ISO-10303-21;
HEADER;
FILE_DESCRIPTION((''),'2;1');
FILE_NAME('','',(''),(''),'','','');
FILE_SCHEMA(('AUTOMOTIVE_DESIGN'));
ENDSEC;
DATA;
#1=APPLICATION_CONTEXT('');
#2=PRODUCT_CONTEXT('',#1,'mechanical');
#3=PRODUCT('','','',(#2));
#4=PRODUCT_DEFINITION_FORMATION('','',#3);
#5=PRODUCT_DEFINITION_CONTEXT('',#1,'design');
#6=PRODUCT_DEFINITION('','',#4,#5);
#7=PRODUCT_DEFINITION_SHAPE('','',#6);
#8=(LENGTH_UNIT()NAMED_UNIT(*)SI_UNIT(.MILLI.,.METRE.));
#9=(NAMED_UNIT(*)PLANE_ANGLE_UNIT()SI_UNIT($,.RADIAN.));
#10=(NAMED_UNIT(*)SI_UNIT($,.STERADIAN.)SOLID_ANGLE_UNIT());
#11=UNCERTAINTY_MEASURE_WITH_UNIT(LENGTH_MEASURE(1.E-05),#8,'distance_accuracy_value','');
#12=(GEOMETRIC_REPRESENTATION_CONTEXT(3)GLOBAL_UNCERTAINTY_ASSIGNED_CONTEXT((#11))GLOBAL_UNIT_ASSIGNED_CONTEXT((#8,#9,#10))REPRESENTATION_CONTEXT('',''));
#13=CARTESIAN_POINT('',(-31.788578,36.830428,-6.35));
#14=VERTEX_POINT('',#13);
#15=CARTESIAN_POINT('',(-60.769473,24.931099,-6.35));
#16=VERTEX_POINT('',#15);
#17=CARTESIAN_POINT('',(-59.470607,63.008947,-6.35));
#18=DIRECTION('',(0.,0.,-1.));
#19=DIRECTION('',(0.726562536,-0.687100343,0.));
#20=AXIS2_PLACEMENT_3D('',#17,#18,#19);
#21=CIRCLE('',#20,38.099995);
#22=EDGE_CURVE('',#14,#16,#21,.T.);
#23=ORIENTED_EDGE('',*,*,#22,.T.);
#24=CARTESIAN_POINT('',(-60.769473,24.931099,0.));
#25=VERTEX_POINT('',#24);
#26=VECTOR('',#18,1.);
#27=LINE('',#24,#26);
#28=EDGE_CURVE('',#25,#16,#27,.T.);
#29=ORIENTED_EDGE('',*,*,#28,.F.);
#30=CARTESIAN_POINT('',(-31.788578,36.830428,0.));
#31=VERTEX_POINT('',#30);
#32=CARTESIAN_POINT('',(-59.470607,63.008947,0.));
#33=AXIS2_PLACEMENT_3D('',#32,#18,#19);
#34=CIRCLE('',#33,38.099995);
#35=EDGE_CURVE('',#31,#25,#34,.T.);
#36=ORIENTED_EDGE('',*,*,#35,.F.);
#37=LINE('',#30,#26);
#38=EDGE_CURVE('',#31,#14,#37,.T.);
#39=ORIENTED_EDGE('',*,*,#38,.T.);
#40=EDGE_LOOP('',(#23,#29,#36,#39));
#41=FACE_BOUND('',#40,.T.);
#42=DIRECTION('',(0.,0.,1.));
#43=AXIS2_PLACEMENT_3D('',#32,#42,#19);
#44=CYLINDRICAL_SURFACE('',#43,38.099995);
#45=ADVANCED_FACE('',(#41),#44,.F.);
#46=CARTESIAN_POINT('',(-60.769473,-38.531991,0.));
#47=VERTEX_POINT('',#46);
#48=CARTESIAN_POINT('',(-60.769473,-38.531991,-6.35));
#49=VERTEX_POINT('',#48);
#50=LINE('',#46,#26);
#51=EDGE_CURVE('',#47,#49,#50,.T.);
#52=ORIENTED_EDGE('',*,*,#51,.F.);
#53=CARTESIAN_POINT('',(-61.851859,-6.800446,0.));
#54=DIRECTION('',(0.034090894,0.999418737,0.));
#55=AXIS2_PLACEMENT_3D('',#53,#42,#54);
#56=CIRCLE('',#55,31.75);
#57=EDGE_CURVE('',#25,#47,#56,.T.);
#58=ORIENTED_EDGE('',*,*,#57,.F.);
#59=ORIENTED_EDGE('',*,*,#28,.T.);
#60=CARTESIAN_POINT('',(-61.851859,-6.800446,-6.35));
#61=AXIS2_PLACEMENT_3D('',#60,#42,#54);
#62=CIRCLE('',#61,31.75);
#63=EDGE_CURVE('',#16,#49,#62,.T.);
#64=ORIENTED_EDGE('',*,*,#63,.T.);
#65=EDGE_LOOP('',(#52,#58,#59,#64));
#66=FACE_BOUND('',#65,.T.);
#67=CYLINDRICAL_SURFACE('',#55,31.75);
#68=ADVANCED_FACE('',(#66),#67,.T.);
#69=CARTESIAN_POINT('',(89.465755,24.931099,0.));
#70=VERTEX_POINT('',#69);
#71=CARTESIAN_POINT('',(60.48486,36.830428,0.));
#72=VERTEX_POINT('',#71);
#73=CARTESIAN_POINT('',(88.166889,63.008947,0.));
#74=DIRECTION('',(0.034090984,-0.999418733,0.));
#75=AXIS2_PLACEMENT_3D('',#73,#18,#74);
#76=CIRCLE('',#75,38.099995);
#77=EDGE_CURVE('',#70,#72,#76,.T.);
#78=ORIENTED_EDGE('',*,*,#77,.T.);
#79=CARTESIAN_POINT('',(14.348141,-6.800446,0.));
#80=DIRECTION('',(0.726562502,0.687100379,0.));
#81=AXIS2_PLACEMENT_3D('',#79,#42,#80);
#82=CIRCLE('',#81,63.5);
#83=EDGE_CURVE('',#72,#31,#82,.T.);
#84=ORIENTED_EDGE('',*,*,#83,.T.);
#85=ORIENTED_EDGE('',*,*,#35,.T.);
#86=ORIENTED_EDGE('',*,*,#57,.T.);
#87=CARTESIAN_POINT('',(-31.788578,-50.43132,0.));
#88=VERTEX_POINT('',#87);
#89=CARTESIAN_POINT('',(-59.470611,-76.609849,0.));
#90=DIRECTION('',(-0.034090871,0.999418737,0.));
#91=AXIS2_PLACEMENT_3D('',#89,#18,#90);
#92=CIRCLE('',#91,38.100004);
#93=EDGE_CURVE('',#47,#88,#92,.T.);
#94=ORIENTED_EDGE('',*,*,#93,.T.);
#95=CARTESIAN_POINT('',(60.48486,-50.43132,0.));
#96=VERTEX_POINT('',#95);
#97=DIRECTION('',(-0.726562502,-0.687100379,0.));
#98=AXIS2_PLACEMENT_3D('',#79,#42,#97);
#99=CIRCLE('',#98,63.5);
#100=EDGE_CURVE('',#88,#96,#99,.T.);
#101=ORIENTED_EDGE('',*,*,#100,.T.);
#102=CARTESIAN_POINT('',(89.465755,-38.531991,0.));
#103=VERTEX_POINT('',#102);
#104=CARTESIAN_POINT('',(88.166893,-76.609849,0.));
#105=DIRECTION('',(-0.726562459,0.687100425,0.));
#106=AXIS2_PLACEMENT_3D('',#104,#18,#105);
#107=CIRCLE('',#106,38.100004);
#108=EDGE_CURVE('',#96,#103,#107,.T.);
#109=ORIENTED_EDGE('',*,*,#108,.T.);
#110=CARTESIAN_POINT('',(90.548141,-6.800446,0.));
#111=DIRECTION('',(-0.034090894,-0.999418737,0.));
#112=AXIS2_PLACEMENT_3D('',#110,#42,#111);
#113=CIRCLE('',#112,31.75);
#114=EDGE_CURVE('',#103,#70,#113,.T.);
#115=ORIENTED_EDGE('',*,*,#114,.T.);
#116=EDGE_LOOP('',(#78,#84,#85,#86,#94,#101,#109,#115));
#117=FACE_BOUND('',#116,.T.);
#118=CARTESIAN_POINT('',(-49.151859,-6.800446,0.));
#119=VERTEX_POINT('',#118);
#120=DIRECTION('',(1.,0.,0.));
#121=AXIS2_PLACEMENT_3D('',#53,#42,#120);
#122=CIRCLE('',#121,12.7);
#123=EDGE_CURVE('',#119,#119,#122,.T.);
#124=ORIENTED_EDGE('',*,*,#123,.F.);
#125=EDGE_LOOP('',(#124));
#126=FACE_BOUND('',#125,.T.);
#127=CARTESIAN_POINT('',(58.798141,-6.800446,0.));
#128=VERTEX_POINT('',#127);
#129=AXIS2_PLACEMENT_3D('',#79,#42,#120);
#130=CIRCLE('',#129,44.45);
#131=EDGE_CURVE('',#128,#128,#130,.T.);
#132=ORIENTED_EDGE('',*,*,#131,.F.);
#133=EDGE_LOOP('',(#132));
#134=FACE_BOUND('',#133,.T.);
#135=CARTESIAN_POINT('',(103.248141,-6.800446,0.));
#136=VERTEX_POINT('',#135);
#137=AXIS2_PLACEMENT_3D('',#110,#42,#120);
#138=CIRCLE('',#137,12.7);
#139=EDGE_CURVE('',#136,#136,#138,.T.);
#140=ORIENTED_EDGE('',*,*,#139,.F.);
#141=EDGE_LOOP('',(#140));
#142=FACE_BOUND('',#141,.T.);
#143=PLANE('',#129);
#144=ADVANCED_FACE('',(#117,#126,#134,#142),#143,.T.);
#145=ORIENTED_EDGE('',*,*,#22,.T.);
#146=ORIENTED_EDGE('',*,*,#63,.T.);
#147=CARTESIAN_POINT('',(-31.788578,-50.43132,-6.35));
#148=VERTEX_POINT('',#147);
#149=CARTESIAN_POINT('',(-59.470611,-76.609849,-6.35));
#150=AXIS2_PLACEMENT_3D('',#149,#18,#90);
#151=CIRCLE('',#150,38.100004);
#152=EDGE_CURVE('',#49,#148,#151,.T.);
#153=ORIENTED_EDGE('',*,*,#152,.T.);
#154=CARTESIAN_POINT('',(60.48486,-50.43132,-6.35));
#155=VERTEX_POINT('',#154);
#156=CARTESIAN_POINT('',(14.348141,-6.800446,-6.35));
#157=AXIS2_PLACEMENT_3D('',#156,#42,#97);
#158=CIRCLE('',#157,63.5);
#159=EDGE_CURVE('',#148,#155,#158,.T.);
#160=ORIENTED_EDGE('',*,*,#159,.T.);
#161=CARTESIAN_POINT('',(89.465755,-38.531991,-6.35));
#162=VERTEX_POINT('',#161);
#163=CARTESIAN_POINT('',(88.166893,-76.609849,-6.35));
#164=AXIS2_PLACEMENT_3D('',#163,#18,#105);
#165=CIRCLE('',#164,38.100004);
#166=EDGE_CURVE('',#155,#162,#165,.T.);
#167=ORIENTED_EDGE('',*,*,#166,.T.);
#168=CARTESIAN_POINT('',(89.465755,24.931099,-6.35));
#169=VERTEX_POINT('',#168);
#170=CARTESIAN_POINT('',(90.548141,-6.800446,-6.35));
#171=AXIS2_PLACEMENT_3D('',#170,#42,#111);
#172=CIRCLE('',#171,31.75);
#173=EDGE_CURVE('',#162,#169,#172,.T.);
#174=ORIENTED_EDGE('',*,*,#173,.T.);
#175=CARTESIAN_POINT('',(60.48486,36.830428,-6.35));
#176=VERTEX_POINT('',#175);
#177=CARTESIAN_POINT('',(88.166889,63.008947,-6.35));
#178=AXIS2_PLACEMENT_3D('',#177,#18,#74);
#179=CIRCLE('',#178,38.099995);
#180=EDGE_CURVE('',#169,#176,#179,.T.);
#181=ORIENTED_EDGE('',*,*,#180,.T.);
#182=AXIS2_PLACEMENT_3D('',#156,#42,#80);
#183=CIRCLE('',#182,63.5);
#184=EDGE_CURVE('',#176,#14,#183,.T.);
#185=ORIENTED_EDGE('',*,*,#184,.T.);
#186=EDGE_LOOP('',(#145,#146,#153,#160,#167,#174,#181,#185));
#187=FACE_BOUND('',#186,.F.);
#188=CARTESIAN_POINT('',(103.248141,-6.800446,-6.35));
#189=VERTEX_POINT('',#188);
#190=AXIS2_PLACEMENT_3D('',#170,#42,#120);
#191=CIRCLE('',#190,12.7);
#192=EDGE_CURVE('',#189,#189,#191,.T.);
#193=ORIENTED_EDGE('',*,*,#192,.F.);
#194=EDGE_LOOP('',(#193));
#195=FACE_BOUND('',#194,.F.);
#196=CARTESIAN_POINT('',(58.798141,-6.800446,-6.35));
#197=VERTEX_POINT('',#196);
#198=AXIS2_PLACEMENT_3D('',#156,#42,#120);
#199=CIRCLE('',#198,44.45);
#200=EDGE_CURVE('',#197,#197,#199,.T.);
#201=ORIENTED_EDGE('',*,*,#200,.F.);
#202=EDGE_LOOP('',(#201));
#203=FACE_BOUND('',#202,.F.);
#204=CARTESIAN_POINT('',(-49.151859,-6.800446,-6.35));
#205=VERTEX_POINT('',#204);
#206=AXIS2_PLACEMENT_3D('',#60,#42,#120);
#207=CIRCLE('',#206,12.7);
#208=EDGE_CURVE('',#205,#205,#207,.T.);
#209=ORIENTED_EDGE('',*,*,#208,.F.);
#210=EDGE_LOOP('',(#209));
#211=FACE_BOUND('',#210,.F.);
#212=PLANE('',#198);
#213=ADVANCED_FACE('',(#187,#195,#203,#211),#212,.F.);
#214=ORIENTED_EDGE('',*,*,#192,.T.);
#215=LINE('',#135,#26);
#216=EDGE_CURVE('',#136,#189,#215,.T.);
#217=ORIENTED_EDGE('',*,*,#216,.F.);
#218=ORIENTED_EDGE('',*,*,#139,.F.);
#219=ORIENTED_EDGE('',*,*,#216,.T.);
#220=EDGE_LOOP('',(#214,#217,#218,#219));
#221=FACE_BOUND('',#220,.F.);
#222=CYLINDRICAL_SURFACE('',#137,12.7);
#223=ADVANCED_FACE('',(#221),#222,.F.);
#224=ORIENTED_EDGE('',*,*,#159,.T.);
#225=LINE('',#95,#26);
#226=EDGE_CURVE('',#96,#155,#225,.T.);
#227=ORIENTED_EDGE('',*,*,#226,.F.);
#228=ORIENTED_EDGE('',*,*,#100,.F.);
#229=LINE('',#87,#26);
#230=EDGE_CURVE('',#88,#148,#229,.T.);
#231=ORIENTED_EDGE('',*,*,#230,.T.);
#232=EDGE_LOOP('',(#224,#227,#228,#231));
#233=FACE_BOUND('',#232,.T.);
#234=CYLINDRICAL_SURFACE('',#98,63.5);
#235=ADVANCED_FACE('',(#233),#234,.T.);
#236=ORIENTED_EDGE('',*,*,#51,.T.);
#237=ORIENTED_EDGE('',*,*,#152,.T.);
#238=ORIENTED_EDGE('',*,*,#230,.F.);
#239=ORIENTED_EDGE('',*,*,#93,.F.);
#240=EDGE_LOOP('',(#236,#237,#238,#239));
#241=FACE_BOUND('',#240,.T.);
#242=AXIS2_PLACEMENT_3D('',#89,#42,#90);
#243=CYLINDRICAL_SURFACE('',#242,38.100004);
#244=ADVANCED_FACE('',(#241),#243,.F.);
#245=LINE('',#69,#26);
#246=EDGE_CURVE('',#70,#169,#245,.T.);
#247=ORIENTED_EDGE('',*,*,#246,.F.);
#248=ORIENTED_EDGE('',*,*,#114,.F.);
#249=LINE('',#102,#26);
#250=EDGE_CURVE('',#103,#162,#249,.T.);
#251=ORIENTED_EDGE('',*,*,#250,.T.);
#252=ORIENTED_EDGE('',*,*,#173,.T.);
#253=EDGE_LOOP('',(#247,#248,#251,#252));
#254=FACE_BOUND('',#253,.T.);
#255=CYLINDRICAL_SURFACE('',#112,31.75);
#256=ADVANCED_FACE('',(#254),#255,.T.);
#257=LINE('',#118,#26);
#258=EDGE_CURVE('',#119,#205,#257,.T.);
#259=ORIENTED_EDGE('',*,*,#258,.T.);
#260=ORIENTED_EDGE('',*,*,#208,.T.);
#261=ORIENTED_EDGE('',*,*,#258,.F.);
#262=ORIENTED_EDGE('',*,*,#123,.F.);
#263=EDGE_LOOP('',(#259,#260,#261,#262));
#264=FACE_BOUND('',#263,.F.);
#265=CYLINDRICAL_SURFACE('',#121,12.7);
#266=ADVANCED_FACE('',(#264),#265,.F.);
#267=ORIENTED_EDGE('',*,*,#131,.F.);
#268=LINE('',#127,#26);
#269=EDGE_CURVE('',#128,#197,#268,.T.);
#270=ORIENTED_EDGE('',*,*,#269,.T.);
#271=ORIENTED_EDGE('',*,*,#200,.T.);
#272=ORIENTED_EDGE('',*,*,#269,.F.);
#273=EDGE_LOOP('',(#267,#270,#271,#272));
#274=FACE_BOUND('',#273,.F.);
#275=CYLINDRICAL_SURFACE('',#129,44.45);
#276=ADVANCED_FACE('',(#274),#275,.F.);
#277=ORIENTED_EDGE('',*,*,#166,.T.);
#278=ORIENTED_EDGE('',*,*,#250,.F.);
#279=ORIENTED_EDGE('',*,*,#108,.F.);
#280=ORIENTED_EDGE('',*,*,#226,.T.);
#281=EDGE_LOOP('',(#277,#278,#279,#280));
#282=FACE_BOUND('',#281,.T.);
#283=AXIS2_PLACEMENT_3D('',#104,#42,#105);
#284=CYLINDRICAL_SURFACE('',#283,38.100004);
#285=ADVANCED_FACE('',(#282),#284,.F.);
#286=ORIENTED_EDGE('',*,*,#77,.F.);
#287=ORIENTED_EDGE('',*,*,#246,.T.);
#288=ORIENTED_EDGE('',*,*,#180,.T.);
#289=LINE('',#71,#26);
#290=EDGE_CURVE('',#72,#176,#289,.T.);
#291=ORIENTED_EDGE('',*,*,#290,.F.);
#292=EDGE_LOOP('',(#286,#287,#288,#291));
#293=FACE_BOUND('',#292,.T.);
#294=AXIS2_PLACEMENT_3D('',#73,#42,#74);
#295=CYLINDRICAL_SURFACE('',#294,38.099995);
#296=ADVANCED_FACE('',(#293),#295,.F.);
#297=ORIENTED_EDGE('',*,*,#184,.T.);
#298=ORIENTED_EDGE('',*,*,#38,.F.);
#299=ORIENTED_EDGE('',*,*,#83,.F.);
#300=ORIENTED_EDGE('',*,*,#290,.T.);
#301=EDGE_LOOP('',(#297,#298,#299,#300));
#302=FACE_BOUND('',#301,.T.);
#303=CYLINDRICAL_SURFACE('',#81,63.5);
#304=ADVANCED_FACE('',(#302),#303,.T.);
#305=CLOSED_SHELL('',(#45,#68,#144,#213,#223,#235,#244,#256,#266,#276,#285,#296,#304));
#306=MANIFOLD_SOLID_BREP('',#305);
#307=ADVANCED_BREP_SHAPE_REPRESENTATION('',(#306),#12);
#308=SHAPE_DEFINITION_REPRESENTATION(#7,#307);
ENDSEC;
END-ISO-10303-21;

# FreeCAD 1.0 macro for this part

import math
import FreeCAD as App
import Part
import Sketcher
from FreeCAD import Vector
Q = App.Units.Quantity

doc = App.newDocument("Part")
body = doc.addObject("PartDesign::Body", "Body")

# Sketch on XY plane
sketch1 = doc.addObject("Sketcher::SketchObject", "Sketch")
body.addObject(sketch1)
sketch1.AttachmentSupport = (doc.XY_Plane, [""])
sketch1.MapMode = "FlatFace"
sketch1.addGeometry([
    Part.ArcOfCircle(Part.Circle(Vector(88.166889, 63.008947, 0), Vector(0, 0, 1), 38.099995), math.radians(-136.598988), math.radians(-88.046352)),  # 0
    Part.ArcOfCircle(Part.Circle(Vector(14.348141, -6.800446, 0), Vector(0, 0, 1), 63.5), math.radians(43.401015), math.radians(136.598985)),  # 1
    Part.ArcOfCircle(Part.Circle(Vector(-59.470607, 63.008947, 0), Vector(0, 0, 1), 38.099995), math.radians(-91.953648), math.radians(-43.401012)),  # 2
    Part.ArcOfCircle(Part.Circle(Vector(-61.851859, -6.800446, 0), Vector(0, 0, 1), 31.75), math.radians(88.046357), math.radians(271.953643)),  # 3
    Part.ArcOfCircle(Part.Circle(Vector(-59.470611, -76.609849, 0), Vector(0, 0, 1), 38.100004), math.radians(43.401018), math.radians(91.953642)),  # 4
    Part.ArcOfCircle(Part.Circle(Vector(14.348141, -6.800446, 0), Vector(0, 0, 1), 63.5), math.radians(-136.598985), math.radians(-43.401015)),  # 5
    Part.ArcOfCircle(Part.Circle(Vector(88.166893, -76.609849, 0), Vector(0, 0, 1), 38.100004), math.radians(88.046358), math.radians(136.598982)),  # 6
    Part.ArcOfCircle(Part.Circle(Vector(90.548141, -6.800446, 0), Vector(0, 0, 1), 31.75), math.radians(-91.953643), math.radians(91.953643)),  # 7
    Part.Circle(Vector(-61.851859, -6.800446, 0), Vector(0, 0, 1), 12.7),  # 8
    Part.Circle(Vector(14.348141, -6.800446, 0), Vector(0, 0, 1), 44.45),  # 9
    Part.Circle(Vector(90.548141, -6.800446, 0), Vector(0, 0, 1), 12.7),  # 10
], False)
sketch1.addConstraint([
    Sketcher.Constraint("Tangent", 0, 1, 1, 1),
    Sketcher.Constraint("Tangent", 1, 2, 2, 2),
    Sketcher.Constraint("Tangent", 2, 1, 3, 1),
    Sketcher.Constraint("Tangent", 3, 2, 4, 2),
    Sketcher.Constraint("Tangent", 4, 1, 5, 1),
    Sketcher.Constraint("Tangent", 5, 2, 6, 2),
    Sketcher.Constraint("Tangent", 6, 1, 7, 1),
    Sketcher.Constraint("Tangent", 7, 2, 0, 2),
    Sketcher.Constraint("Coincident", 5, 3, 1, 3),
    Sketcher.Constraint("Coincident", 8, 3, 3, 3),
    Sketcher.Constraint("Coincident", 9, 3, 1, 3),
    Sketcher.Constraint("Coincident", 10, 3, 7, 3),
    Sketcher.Constraint("Equal", 0, 2),
    Sketcher.Constraint("Equal", 1, 5),
    Sketcher.Constraint("Equal", 4, 6),
    Sketcher.Constraint("Equal", 3, 7),
    Sketcher.Constraint("Equal", 8, 10),
    Sketcher.Constraint("Horizontal", 0, 3, 2, 3),
    Sketcher.Constraint("Horizontal", 1, 3, 3, 3),
    Sketcher.Constraint("Horizontal", 4, 3, 6, 3),
    Sketcher.Constraint("Vertical", 2, 1, 3, 2),
    Sketcher.Constraint("Diameter", 8, Q("1 in")),
    Sketcher.Constraint("Diameter", 9, Q("3.5 in")),
    Sketcher.Constraint("Radius", 1, Q("2.5 in")),
    Sketcher.Constraint("Radius", 4, Q("1.5000002 in")),
    Sketcher.Constraint("Radius", 3, Q("1.25 in")),
    Sketcher.Constraint("DistanceX", 3, 3, 1, 3, Q("3 in")),
    Sketcher.Constraint("DistanceY", -1, 1, 2, 1, Q("24.931099 mm")),
    Sketcher.Constraint("DistanceX", -1, 1, 0, 3, Q("88.166889 mm")),
])
pad1 = doc.addObject("PartDesign::Pad", "Pad")
body.addObject(pad1)
pad1.Profile = sketch1
pad1.Length = Q("0.25 in")
pad1.Reversed = True

doc.recompute()
